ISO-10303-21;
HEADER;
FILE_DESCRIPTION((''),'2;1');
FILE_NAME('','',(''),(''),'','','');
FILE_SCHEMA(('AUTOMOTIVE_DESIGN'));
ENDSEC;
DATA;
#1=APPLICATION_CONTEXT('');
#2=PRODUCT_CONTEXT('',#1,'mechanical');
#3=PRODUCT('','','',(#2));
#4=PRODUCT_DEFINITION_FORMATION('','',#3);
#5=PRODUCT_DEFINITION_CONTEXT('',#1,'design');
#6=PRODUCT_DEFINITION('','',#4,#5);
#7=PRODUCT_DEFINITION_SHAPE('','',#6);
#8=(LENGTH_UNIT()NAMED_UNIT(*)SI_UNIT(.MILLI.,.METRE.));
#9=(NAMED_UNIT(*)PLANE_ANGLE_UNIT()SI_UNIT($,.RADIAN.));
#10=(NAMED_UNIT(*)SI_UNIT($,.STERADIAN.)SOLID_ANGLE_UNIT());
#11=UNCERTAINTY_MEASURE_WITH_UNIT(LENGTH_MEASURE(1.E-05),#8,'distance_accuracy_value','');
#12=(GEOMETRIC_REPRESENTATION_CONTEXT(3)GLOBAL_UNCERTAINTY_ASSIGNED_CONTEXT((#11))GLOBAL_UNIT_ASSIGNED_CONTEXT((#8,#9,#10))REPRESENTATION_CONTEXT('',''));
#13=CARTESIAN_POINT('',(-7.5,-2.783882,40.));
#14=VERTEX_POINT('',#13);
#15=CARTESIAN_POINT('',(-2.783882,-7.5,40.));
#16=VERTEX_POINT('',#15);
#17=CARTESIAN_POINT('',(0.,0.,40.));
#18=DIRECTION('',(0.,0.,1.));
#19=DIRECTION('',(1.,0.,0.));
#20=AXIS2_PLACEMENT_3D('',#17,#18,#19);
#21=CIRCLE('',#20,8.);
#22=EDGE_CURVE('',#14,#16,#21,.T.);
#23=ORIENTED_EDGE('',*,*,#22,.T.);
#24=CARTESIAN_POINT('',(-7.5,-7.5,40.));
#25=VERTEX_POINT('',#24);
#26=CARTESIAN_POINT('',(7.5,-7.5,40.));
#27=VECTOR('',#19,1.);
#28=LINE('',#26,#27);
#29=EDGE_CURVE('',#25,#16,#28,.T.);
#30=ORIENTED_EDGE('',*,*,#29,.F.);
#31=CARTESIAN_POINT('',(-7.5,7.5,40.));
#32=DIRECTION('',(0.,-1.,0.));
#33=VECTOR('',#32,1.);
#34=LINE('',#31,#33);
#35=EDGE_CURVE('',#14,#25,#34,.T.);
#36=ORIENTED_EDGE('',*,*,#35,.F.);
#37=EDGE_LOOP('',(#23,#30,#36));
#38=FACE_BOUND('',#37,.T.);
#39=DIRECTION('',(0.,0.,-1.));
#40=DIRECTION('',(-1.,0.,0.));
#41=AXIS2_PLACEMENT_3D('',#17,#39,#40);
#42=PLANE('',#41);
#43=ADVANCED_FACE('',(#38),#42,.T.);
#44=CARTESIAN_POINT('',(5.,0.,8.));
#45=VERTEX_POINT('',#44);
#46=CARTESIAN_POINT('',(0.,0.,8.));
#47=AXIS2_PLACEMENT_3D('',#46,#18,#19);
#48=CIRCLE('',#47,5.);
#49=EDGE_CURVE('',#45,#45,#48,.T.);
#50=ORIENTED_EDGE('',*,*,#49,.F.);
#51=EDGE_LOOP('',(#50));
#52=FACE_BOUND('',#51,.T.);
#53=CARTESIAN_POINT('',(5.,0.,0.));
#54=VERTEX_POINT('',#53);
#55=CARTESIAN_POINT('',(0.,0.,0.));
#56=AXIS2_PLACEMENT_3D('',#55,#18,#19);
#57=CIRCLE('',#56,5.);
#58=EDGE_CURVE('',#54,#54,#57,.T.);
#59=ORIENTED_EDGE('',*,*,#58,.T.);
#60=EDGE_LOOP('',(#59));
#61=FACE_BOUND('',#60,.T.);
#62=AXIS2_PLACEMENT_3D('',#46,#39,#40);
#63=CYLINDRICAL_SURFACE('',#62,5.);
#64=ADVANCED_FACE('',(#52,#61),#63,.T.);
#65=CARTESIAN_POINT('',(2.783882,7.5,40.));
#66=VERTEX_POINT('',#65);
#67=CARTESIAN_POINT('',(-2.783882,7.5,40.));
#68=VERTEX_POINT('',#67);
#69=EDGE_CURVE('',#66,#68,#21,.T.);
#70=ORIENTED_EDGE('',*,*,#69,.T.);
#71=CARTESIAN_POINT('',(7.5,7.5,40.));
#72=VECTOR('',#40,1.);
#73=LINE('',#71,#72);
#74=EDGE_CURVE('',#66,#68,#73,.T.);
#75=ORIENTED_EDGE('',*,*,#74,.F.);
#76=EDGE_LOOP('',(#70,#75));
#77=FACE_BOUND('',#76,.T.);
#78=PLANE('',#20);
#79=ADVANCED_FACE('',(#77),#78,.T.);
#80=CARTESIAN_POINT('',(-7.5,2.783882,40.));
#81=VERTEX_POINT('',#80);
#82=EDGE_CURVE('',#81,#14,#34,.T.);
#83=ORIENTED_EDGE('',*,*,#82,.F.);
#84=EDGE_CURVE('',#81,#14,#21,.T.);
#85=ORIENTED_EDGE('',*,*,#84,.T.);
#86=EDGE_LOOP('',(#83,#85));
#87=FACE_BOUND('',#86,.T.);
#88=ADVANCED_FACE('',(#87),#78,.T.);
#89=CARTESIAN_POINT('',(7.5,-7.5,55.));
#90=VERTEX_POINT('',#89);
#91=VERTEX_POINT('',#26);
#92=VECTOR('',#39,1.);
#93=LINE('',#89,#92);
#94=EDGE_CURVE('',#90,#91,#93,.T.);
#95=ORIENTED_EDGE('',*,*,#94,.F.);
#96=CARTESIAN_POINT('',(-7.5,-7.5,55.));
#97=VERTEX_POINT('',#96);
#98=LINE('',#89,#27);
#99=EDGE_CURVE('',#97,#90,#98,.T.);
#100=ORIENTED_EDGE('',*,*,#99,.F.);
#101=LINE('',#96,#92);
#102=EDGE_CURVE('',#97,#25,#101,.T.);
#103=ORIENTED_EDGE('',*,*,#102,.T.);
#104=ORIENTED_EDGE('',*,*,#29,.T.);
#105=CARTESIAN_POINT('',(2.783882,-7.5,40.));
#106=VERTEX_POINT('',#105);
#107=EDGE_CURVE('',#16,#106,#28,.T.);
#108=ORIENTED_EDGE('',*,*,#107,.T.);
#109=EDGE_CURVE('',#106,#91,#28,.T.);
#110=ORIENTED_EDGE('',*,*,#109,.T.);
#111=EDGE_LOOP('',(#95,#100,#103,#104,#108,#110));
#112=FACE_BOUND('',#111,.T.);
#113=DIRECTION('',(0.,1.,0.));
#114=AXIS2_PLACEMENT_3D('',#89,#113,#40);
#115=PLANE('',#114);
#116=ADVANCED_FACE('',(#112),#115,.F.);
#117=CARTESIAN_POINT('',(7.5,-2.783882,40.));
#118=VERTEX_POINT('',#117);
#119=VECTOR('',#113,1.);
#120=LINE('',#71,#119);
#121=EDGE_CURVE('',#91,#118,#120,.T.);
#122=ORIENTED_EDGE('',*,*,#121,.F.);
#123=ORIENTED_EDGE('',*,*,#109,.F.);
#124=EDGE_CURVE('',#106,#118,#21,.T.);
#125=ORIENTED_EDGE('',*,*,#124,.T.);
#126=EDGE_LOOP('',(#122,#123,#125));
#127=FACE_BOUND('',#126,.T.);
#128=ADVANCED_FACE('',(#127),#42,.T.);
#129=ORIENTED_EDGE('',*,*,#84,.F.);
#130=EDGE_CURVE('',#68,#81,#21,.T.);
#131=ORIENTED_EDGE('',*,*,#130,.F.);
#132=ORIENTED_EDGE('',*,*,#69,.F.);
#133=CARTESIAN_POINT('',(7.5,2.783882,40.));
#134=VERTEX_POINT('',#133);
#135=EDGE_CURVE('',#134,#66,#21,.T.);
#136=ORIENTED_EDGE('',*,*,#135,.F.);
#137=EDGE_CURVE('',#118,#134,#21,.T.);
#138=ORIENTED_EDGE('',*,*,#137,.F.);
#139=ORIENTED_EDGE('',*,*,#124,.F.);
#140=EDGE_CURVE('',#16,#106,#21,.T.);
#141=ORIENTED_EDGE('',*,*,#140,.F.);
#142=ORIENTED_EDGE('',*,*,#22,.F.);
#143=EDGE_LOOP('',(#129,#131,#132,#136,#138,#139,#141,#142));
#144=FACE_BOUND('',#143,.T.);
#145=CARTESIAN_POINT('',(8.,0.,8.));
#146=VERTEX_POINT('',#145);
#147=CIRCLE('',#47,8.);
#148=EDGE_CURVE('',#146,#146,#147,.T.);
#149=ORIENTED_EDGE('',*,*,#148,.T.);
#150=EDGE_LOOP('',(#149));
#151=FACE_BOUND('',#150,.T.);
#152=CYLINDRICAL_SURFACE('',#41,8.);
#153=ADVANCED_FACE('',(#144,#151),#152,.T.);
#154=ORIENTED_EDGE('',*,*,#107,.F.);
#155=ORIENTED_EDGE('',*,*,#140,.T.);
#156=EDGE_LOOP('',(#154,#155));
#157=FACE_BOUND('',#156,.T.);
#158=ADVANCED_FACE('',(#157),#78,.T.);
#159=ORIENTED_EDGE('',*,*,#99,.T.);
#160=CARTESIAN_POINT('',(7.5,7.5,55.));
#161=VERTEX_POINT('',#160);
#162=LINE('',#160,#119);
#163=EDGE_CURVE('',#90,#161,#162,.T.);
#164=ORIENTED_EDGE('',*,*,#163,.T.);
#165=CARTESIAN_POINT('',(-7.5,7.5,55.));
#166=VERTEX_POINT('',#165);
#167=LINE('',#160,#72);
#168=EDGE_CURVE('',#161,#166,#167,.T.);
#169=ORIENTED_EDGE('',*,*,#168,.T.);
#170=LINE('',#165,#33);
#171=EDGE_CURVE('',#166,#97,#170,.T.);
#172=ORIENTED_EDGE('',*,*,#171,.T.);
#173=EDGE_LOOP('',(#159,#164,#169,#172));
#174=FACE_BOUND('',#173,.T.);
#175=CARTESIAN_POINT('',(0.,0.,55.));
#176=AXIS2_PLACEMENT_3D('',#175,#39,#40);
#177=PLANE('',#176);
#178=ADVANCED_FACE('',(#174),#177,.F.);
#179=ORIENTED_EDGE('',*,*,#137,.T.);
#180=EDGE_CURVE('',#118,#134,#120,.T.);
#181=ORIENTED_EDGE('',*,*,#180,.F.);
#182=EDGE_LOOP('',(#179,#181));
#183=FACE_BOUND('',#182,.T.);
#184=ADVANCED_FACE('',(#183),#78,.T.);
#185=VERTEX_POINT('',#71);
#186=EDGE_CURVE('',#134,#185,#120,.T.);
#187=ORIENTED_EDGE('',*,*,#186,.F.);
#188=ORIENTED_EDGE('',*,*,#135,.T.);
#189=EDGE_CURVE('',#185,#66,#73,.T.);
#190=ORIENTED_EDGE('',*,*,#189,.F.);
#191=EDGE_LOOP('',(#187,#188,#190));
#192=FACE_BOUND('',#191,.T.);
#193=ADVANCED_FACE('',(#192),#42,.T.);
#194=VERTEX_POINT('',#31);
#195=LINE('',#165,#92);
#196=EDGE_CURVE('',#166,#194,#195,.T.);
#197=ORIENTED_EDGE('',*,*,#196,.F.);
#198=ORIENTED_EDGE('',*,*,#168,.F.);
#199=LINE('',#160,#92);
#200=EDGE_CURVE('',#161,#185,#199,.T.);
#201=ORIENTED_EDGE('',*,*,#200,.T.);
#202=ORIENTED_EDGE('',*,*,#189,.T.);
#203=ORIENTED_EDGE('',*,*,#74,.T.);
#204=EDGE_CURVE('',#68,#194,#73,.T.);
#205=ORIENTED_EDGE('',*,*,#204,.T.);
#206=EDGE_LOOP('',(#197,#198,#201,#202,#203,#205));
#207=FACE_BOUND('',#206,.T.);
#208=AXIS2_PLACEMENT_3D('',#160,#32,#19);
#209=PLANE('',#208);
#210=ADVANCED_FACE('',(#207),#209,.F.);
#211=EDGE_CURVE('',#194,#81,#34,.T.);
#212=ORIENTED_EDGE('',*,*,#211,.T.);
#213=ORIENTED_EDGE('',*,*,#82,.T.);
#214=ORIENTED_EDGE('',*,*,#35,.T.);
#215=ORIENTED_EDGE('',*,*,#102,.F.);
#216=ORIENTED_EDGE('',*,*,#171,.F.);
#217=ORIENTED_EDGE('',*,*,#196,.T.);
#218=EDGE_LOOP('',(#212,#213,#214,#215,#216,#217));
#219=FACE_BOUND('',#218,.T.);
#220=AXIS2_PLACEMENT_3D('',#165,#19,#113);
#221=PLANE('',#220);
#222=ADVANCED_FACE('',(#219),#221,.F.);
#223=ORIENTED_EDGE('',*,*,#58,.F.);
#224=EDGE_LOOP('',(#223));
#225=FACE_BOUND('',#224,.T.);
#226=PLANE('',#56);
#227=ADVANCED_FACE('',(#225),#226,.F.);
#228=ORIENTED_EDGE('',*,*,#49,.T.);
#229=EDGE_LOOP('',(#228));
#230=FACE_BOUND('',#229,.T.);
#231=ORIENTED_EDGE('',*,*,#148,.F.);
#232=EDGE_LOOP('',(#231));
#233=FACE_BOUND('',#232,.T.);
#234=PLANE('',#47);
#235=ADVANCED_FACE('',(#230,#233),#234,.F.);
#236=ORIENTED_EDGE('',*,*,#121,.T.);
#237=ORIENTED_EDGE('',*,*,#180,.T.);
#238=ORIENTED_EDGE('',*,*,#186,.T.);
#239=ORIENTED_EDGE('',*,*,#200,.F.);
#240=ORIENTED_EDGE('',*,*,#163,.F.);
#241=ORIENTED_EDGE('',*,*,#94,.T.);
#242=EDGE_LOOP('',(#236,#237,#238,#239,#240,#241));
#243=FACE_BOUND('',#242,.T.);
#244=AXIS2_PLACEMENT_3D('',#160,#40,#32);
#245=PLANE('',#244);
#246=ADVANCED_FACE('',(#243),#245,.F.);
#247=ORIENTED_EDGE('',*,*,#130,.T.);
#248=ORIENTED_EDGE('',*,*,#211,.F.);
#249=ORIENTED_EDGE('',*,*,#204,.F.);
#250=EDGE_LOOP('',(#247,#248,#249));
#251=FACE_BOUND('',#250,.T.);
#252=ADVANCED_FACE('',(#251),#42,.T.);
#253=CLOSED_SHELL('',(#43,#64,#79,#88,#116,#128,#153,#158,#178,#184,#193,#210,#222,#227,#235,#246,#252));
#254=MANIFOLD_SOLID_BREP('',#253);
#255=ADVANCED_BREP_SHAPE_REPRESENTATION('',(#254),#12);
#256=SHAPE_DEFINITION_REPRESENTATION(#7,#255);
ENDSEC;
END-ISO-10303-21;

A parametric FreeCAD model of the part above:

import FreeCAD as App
import Part
import Sketcher
from FreeCAD import Vector
Q = App.Units.Quantity

doc = App.newDocument("Part")
params = doc.addObject("Spreadsheet::Sheet", "Params")
for row, (alias, value) in enumerate([
    ("sketch1_diameter", "10 mm"),
    ("pad1_length", "8 mm"),
    ("sketch2_diameter", "16 mm"),
    ("pad2_length", "32 mm"),
    ("sketch3_width", "15 mm"),
    ("pad3_length", "15 mm"),
], start=1):
    params.set(f"A{row}", alias)
    params.set(f"B{row}", "=" + value)
    params.setAlias(f"B{row}", alias)

body = doc.addObject("PartDesign::Body", "Body")

sketch1 = doc.addObject("Sketcher::SketchObject", "Sketch")
body.addObject(sketch1)
sketch1.AttachmentSupport = (doc.XY_Plane, [""])
sketch1.MapMode = "FlatFace"
sketch1.addGeometry(Part.Circle(Vector(0, 0, 0), Vector(0, 0, 1), 5), False)
sketch1.addConstraint([
    Sketcher.Constraint("Coincident", 0, 3, -1, 1),
    Sketcher.Constraint("Diameter", 0, Q("10 mm")),
])
sketch1.setExpression("Constraints[1]", "Params.sketch1_diameter")
pad1 = doc.addObject("PartDesign::Pad", "Pad")
body.addObject(pad1)
pad1.Profile = sketch1
pad1.setExpression("Length", "Params.pad1_length")

sketch2 = doc.addObject("Sketcher::SketchObject", "Sketch001")
body.addObject(sketch2)
sketch2.AttachmentSupport = (doc.XY_Plane, [""])
sketch2.MapMode = "FlatFace"
sketch2.AttachmentOffset = App.Placement(Vector(0, 0, 8), App.Rotation())
sketch2.addGeometry(Part.Circle(Vector(0, 0, 0), Vector(0, 0, 1), 8), False)
sketch2.addConstraint([
    Sketcher.Constraint("Coincident", 0, 3, -1, 1),
    Sketcher.Constraint("Diameter", 0, Q("16 mm")),
])
sketch2.setExpression("Constraints[1]", "Params.sketch2_diameter")
pad2 = doc.addObject("PartDesign::Pad", "Pad001")
body.addObject(pad2)
pad2.Profile = sketch2
pad2.setExpression("Length", "Params.pad2_length")

sketch3 = doc.addObject("Sketcher::SketchObject", "Sketch002")
body.addObject(sketch3)
sketch3.AttachmentSupport = (doc.XY_Plane, [""])
sketch3.MapMode = "FlatFace"
sketch3.AttachmentOffset = App.Placement(Vector(0, 0, 40), App.Rotation())
sketch3.addGeometry([
    Part.LineSegment(Vector(-7.5, 7.5, 0), Vector(-7.5, -7.5, 0)),
    Part.LineSegment(Vector(-7.5, -7.5, 0), Vector(7.5, -7.5, 0)),
    Part.LineSegment(Vector(7.5, -7.5, 0), Vector(7.5, 7.5, 0)),
    Part.LineSegment(Vector(7.5, 7.5, 0), Vector(-7.5, 7.5, 0)),
], False)
sketch3.addConstraint([
    Sketcher.Constraint("Coincident", 0, 2, 1, 1),
    Sketcher.Constraint("Coincident", 1, 2, 2, 1),
    Sketcher.Constraint("Coincident", 2, 2, 3, 1),
    Sketcher.Constraint("Coincident", 3, 2, 0, 1),
    Sketcher.Constraint("Vertical", 0),
    Sketcher.Constraint("Horizontal", 1),
    Sketcher.Constraint("Vertical", 2),
    Sketcher.Constraint("Horizontal", 3),
    Sketcher.Constraint("Symmetric", 0, 2, 2, 2, -1, 1),
    Sketcher.Constraint("Equal", 3, 0),
    Sketcher.Constraint("DistanceX", 1, 1, 1, 2, Q("15 mm")),
])
sketch3.setExpression("Constraints[10]", "Params.sketch3_width")
pad3 = doc.addObject("PartDesign::Pad", "Pad002")
body.addObject(pad3)
pad3.Profile = sketch3
pad3.setExpression("Length", "Params.pad3_length")

doc.recompute()
